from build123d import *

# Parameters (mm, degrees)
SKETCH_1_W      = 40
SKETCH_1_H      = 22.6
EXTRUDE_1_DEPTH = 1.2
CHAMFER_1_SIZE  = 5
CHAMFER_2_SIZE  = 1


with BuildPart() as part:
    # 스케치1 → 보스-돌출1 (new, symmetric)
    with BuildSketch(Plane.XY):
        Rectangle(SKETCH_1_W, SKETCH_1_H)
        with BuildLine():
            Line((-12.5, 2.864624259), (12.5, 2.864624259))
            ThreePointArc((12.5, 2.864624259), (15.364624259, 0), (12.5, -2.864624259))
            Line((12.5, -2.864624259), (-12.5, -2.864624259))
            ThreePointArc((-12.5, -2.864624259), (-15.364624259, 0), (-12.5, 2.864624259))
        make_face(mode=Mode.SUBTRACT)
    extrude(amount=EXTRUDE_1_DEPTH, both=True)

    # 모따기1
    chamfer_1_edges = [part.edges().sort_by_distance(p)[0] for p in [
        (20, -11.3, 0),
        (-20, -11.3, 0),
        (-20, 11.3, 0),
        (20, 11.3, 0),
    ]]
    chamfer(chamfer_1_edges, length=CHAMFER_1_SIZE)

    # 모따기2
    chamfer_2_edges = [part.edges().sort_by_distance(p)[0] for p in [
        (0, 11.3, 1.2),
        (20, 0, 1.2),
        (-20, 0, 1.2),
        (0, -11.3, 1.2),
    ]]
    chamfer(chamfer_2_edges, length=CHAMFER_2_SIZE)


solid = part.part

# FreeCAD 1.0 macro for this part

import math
import FreeCAD as App
import Part
import Sketcher


def edges_at(feature, points):
    """Names of the edges that pass closest to the given points."""
    edges = feature.Shape.Edges
    near = lambda p: min(range(len(edges)), key=lambda i: edges[i].distToShape(Part.Vertex(*p))[0])
    return sorted({f"Edge{near(p) + 1}" for p in points})


def add_polygon(sketch, points):
    """Adds a closed chain of lines whose ends are joined by coincident constraints."""
    first, n = sketch.GeometryCount, len(points)
    for a, b in zip(points, points[1:] + points[:1]):
        sketch.addGeometry(Part.LineSegment(App.Vector(*a, 0), App.Vector(*b, 0)), False)
    for i in range(n):
        sketch.addConstraint(Sketcher.Constraint("Coincident", first + i, 2, first + (i + 1) % n, 1))

doc = App.newDocument("Part")
body = doc.addObject("PartDesign::Body", "Body")

# Sketch on XY plane
sketch1 = body.newObject("Sketcher::SketchObject", "Sketch")
sketch1.AttachmentSupport = (doc.getObject("XY_Plane"), [""])
sketch1.MapMode = "FlatFace"
add_polygon(sketch1, [(-20, 11.3), (-20, -11.3), (20, -11.3), (20, 11.3)])  # lines 0-3
sketch1.addGeometry(Part.ArcOfCircle(Part.Circle(App.Vector(-12.5, 0, 0), App.Vector(0, 0, 1), 2.9), math.radians(90), math.radians(270)), False)  # 4
sketch1.addGeometry(Part.LineSegment(App.Vector(-12.5, 2.9, 0), App.Vector(12.5, 2.9, 0)), False)  # 5
sketch1.addGeometry(Part.ArcOfCircle(Part.Circle(App.Vector(12.5, 0, 0), App.Vector(0, 0, 1), 2.9), math.radians(-90), math.radians(90)), False)  # 6
sketch1.addGeometry(Part.LineSegment(App.Vector(12.5, -2.9, 0), App.Vector(-12.5, -2.9, 0)), False)  # 7
sketch1.addConstraint([
    Sketcher.Constraint("Tangent", 4, 1, 5, 1),
    Sketcher.Constraint("Tangent", 5, 2, 6, 2),
    Sketcher.Constraint("Tangent", 6, 1, 7, 1),
    Sketcher.Constraint("Tangent", 7, 2, 4, 2),
    Sketcher.Constraint("Vertical", 0),
    Sketcher.Constraint("Horizontal", 1),
    Sketcher.Constraint("Vertical", 2),
    Sketcher.Constraint("Horizontal", 3),
    Sketcher.Constraint("Horizontal", 5),
    Sketcher.Constraint("Horizontal", 7),
    Sketcher.Constraint("Symmetric", 4, 3, 6, 3, -1, 1),
    Sketcher.Constraint("Symmetric", 0, 2, 2, 2, -1, 1),
    Sketcher.Constraint("DistanceX", 1, 1, 1, 2, 40.0),
    Sketcher.Constraint("DistanceX", 5, 1, 5, 2, 25.0),
    Sketcher.Constraint("DistanceY", 0, 2, 0, 1, 22.6),
    Sketcher.Constraint("Radius", 4, 2.864624),
])
pad1 = body.newObject("PartDesign::Pad", "Pad")
pad1.Profile = sketch1
pad1.Length = 2.4
pad1.Midplane = True
doc.recompute()

chamfer = body.newObject("PartDesign::Chamfer", "Chamfer")
chamfer.Base = (pad1, edges_at(pad1, [
    (20, -11.3, 0),
    (-20, -11.3, 0),
    (-20, 11.3, 0),
    (20, 11.3, 0),
]))
chamfer.Size = 5
doc.recompute()

chamfer2 = body.newObject("PartDesign::Chamfer", "Chamfer001")
chamfer2.Base = (chamfer, edges_at(chamfer, [
    (0, 11.3, 1.2),
    (20, 0, 1.2),
    (-20, 0, 1.2),
    (0, -11.3, 1.2),
]))
chamfer2.Size = 1

doc.recompute()
